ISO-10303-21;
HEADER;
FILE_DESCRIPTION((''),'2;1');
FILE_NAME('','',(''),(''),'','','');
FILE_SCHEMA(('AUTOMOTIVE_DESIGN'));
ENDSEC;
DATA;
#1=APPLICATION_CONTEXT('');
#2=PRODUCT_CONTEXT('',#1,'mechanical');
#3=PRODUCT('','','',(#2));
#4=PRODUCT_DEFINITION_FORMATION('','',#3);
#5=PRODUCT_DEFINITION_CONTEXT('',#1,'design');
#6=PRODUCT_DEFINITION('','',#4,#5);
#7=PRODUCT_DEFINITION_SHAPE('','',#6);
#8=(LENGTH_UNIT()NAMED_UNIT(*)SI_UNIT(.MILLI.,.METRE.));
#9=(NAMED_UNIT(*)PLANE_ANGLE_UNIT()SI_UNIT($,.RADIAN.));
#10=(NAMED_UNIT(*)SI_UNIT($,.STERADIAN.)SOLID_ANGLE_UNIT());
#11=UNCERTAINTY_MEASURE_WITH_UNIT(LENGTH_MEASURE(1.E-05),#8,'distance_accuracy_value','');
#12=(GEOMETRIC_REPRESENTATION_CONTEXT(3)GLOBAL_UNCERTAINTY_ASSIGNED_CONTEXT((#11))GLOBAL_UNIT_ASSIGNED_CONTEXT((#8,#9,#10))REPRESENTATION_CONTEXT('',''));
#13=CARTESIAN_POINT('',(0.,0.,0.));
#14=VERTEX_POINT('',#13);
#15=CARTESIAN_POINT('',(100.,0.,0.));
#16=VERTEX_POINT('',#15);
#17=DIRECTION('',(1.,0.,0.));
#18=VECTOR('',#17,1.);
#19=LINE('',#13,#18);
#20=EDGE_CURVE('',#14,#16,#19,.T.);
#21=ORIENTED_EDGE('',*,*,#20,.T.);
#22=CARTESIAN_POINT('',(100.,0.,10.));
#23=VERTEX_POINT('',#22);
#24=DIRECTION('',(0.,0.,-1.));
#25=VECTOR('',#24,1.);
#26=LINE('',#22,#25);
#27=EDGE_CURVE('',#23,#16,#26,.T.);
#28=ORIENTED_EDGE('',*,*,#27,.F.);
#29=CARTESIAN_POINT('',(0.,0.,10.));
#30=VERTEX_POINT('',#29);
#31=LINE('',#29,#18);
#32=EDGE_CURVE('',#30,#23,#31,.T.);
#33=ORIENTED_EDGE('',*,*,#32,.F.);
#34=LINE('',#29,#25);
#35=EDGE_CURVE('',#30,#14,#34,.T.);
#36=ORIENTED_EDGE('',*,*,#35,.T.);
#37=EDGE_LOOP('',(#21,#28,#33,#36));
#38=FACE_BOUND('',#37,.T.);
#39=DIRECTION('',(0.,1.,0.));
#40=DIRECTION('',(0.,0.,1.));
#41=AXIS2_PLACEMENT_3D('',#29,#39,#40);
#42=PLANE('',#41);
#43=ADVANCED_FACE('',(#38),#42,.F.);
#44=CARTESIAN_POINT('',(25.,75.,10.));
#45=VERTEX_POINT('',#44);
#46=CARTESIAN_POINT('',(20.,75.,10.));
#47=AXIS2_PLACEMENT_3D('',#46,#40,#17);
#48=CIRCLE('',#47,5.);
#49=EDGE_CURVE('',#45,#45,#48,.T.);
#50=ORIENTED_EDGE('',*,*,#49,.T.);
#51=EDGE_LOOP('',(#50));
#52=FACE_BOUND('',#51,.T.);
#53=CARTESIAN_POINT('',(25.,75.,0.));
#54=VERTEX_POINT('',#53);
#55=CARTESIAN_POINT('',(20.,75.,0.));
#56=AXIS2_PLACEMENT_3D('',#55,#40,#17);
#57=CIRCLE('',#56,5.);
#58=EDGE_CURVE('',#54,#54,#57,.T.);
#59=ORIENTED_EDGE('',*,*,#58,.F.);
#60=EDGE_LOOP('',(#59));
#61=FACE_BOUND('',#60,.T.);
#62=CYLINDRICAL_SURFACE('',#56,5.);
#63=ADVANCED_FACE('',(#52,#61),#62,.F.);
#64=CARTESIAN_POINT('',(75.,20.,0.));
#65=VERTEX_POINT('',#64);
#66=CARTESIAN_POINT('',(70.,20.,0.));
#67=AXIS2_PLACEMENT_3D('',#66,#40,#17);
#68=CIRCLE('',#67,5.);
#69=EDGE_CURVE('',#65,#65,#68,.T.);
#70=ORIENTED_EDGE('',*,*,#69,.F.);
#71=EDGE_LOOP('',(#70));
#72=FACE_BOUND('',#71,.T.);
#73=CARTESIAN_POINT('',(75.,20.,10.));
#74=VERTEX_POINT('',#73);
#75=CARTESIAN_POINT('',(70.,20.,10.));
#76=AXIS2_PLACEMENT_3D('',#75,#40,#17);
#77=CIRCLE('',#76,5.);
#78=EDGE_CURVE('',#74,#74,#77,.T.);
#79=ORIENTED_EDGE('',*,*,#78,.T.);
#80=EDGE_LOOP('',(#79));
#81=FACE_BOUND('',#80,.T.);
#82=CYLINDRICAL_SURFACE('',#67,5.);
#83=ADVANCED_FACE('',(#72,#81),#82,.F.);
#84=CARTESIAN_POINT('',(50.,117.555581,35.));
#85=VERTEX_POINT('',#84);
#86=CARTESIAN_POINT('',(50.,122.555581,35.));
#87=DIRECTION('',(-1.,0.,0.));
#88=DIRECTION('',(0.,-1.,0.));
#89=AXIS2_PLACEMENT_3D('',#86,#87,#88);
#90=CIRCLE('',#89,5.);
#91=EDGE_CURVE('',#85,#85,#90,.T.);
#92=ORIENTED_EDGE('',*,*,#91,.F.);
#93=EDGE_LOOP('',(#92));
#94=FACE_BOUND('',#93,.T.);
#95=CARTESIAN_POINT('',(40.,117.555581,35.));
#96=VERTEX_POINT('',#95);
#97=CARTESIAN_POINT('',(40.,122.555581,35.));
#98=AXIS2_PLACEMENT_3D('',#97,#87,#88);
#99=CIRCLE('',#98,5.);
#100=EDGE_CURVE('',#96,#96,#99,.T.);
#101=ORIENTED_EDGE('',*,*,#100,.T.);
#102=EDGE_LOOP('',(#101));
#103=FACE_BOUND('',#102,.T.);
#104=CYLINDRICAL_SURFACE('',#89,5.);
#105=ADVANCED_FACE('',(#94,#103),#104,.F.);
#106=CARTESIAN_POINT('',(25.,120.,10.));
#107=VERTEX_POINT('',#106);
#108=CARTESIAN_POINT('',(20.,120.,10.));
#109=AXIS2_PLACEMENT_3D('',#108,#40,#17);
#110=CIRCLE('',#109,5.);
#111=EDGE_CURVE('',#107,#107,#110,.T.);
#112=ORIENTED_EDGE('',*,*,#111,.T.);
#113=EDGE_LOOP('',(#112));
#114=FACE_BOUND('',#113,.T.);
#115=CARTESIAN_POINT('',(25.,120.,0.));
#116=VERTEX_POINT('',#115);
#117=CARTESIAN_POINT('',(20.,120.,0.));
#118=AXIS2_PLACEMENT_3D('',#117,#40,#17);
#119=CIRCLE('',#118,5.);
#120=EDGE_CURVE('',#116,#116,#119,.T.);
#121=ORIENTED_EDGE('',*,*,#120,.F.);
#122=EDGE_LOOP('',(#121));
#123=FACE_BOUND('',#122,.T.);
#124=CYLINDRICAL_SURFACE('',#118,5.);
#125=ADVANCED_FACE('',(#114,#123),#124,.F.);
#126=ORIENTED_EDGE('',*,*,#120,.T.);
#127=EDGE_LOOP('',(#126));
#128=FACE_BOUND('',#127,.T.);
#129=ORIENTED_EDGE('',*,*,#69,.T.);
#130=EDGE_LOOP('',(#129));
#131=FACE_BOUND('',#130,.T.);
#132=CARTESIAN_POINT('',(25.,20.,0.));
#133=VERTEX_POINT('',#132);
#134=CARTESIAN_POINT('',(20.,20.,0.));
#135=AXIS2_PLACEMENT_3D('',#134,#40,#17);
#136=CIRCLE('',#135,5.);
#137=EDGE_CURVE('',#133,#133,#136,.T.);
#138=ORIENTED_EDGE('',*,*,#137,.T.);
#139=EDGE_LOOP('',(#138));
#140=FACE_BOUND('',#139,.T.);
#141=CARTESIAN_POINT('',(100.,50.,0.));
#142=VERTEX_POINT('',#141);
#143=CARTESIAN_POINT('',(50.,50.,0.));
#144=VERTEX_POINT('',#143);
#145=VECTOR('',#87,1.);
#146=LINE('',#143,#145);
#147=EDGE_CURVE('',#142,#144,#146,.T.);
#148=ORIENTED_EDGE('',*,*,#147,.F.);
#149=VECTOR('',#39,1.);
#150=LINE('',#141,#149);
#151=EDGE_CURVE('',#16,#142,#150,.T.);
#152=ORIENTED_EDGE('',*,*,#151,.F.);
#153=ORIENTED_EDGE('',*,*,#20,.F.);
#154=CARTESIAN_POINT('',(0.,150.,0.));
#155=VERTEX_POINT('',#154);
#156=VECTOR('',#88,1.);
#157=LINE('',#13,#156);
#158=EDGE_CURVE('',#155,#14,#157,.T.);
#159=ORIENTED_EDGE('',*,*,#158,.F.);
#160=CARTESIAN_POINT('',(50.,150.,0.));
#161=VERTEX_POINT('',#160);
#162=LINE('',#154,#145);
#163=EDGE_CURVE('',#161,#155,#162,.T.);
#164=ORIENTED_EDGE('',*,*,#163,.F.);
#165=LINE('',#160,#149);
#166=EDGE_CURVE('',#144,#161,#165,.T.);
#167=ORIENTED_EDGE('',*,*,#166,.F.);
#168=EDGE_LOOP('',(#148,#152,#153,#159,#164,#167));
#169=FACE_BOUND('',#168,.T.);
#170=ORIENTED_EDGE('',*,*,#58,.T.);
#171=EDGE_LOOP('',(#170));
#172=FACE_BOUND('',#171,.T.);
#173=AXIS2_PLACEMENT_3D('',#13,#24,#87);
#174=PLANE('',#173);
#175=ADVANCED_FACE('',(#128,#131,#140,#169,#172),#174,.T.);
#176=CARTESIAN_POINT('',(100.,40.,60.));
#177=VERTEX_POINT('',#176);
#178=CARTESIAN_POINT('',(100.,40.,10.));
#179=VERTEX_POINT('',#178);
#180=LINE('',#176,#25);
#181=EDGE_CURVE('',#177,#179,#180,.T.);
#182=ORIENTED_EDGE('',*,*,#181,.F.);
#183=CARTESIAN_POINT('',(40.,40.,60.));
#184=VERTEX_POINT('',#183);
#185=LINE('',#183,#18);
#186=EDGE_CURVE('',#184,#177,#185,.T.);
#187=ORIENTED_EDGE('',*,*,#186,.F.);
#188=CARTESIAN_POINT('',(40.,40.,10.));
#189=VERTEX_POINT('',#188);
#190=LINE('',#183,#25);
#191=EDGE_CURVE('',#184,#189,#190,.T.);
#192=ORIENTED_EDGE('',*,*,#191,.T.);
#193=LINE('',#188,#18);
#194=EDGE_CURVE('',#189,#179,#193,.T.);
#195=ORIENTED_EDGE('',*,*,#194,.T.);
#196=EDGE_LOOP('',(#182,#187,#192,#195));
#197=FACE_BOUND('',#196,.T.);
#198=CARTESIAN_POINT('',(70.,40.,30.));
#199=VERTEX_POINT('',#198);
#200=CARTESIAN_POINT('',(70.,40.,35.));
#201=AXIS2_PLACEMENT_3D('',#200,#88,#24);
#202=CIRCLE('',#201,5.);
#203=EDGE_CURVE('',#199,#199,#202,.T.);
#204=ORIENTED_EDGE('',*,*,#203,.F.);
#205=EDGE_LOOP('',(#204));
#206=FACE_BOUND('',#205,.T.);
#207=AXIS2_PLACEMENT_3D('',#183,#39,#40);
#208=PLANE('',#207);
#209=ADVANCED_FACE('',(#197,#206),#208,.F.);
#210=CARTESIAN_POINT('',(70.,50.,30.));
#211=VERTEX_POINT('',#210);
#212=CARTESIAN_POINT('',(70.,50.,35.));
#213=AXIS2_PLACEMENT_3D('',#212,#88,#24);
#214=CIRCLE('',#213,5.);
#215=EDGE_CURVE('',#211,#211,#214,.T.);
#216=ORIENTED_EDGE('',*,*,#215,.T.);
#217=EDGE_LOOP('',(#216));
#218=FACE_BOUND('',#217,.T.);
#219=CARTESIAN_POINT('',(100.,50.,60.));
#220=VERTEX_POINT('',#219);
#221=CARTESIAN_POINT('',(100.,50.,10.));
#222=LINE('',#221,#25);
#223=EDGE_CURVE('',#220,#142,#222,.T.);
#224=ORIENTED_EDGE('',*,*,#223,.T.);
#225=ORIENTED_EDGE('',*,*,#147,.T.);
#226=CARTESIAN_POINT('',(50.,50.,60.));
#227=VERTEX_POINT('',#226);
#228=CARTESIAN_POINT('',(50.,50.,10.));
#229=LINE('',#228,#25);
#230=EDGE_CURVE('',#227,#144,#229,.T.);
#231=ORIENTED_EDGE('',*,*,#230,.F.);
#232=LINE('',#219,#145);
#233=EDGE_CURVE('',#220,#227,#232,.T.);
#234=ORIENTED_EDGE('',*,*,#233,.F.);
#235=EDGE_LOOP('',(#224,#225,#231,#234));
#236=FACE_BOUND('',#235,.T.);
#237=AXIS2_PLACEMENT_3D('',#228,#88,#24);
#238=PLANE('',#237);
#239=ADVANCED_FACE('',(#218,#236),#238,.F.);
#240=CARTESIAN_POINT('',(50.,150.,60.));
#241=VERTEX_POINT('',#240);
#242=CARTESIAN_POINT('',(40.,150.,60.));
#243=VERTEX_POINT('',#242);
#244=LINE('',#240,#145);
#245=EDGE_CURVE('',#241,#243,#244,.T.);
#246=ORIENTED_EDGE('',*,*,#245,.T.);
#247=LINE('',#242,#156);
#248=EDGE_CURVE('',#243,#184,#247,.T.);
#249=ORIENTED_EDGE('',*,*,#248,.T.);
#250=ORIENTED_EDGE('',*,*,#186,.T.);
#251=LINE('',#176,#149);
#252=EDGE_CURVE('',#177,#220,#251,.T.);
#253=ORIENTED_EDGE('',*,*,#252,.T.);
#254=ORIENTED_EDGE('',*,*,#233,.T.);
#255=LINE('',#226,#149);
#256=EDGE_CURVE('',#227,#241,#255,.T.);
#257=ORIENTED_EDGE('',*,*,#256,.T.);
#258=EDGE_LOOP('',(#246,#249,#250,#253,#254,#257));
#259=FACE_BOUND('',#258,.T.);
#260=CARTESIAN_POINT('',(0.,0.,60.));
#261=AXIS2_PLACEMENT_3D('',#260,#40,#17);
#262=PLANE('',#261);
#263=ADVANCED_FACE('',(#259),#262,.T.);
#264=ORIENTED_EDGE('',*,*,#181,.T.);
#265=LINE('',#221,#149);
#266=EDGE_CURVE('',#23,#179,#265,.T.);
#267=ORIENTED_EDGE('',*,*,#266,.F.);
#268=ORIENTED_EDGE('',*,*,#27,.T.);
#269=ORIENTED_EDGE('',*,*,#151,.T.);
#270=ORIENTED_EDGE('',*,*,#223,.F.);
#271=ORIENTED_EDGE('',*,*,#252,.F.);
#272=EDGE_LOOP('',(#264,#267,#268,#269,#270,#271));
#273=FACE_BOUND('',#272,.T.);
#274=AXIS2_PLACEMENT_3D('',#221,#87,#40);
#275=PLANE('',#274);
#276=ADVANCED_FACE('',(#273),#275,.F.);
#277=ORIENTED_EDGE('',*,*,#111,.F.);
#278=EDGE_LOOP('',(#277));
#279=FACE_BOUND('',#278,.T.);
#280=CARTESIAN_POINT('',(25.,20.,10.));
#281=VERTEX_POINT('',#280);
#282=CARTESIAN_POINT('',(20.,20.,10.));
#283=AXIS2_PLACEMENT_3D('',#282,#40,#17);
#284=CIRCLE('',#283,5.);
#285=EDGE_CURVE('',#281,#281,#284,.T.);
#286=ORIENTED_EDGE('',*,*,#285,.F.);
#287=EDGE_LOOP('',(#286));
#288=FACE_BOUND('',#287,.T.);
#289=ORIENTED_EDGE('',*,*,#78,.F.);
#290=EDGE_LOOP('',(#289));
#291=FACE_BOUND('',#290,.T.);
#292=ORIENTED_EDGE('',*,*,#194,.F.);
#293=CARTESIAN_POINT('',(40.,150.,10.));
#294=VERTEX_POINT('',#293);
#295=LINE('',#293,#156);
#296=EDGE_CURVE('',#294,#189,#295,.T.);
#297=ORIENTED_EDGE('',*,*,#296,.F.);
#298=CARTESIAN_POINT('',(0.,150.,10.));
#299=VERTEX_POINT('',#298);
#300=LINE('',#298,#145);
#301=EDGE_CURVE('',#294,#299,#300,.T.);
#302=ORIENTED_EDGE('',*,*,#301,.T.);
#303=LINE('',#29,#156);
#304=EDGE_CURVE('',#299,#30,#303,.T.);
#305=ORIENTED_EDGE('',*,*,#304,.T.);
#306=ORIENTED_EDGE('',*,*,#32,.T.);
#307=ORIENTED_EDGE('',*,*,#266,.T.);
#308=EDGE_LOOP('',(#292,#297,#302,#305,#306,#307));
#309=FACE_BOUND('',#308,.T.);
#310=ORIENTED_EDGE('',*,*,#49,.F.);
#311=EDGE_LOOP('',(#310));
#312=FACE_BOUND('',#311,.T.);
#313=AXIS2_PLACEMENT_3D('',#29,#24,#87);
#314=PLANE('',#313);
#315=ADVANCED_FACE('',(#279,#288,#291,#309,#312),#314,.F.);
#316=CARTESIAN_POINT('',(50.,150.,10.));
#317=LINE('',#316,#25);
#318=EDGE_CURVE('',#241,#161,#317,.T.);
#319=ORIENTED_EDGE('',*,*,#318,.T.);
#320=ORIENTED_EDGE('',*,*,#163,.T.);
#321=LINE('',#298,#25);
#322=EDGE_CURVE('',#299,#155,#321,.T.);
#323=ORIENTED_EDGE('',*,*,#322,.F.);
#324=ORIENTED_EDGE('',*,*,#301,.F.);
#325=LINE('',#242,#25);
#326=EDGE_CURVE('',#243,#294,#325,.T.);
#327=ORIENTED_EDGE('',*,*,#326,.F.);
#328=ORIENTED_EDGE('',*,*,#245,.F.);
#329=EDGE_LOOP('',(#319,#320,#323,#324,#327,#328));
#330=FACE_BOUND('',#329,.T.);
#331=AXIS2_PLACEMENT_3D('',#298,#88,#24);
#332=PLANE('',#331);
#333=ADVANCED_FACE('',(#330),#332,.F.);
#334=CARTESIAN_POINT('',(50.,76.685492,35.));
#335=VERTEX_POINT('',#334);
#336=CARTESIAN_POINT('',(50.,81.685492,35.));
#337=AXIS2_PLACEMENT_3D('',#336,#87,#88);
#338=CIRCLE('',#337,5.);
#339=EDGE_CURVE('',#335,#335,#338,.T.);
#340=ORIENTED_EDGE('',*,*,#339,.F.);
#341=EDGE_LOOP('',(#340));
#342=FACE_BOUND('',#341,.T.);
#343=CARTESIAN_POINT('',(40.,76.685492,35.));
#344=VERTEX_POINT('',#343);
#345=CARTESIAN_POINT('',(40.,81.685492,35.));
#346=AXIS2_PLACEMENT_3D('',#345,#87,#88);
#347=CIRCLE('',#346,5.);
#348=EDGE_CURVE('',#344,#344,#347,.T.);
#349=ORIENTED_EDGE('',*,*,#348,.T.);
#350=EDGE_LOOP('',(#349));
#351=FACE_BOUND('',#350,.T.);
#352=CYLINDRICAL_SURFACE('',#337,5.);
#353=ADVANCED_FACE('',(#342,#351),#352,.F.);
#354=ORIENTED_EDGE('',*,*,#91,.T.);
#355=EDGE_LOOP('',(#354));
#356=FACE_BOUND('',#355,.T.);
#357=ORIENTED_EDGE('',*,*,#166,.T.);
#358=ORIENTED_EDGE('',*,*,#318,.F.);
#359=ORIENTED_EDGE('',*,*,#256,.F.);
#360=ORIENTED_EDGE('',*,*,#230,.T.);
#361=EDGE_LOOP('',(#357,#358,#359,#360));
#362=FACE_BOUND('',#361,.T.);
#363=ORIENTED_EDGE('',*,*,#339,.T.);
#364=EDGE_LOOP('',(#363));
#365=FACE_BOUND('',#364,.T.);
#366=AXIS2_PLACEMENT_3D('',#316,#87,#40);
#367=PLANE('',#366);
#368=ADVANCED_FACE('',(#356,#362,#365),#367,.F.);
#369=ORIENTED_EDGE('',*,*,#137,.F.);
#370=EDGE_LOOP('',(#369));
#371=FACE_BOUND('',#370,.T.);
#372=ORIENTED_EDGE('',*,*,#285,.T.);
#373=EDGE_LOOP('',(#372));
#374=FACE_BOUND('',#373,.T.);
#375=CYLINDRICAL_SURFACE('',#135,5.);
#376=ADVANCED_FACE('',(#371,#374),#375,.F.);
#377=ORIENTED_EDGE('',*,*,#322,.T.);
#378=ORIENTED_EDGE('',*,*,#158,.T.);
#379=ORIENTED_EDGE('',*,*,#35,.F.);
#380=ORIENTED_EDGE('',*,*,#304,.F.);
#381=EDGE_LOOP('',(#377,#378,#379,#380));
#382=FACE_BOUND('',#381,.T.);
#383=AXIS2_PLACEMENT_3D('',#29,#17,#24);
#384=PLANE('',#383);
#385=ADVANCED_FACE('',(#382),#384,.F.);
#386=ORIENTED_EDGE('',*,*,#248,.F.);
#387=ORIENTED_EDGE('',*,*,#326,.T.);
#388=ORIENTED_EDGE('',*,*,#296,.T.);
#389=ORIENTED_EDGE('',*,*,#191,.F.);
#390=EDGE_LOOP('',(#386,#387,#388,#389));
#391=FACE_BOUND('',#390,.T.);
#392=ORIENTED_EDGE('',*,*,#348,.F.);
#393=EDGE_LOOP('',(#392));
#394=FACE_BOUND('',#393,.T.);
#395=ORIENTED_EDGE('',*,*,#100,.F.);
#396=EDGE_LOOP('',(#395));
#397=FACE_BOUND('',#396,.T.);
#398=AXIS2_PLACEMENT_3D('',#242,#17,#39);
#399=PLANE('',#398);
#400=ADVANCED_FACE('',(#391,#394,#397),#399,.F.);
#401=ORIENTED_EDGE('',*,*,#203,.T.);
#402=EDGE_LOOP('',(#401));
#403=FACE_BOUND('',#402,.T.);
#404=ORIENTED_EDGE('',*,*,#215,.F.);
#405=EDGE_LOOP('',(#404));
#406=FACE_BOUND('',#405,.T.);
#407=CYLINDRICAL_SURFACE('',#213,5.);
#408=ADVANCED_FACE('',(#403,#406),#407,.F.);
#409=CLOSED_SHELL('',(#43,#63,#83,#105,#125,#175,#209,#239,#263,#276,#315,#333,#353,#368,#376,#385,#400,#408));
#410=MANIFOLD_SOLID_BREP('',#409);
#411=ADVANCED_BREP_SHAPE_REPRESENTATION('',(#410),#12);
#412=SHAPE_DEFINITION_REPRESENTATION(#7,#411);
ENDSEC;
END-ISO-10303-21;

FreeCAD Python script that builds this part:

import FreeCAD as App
import Part
import Sketcher

V = App.Vector

doc = App.newDocument("Part")
body = doc.addObject("PartDesign::Body", "Body")

# Sketch on XY plane
sketch1 = body.newObject("Sketcher::SketchObject", "Sketch")
sketch1.AttachmentSupport = (doc.getObject("XY_Plane"), [""])
sketch1.MapMode = "FlatFace"
sketch1.addGeometry([
    Part.LineSegment(V(50, 150, 0), V(0, 150, 0)),  # 0
    Part.LineSegment(V(0, 150, 0), V(0, 0, 0)),  # 1
    Part.LineSegment(V(0, 0, 0), V(100, 0, 0)),  # 2
    Part.LineSegment(V(100, 0, 0), V(100, 50, 0)),  # 3
    Part.LineSegment(V(100, 50, 0), V(50, 50, 0)),  # 4
    Part.LineSegment(V(50, 50, 0), V(50, 150, 0)),  # 5
], False)
sketch1.addConstraint([
    Sketcher.Constraint("Coincident", 0, 2, 1, 1),
    Sketcher.Constraint("Coincident", 1, 2, 2, 1),
    Sketcher.Constraint("Coincident", 2, 2, 3, 1),
    Sketcher.Constraint("Coincident", 3, 2, 4, 1),
    Sketcher.Constraint("Coincident", 4, 2, 5, 1),
    Sketcher.Constraint("Coincident", 5, 2, 0, 1),
    Sketcher.Constraint("Horizontal", 0),
    Sketcher.Constraint("Vertical", 1),
    Sketcher.Constraint("Horizontal", 2),
    Sketcher.Constraint("Vertical", 3),
    Sketcher.Constraint("Horizontal", 4),
    Sketcher.Constraint("Vertical", 5),
    Sketcher.Constraint("Coincident", 1, 2, -1, 1),
    Sketcher.Constraint("Equal", 0, 4),
    Sketcher.Constraint("Equal", 4, 3),
    Sketcher.Constraint("Equal", 2, 5),
    Sketcher.Constraint("DistanceX", 0, 2, 0, 1, 50.0),
])
pad1 = body.newObject("PartDesign::Pad", "Pad")
pad1.Profile = sketch1
pad1.Length = 10

# Sketch on XY plane
sketch2 = body.newObject("Sketcher::SketchObject", "Sketch001")
sketch2.AttachmentSupport = (doc.getObject("XY_Plane"), [""])
sketch2.MapMode = "FlatFace"
sketch2.AttachmentOffset = App.Placement(V(0, 0, 10), App.Rotation())
sketch2.addGeometry([
    Part.LineSegment(V(40, 150, 0), V(40, 40, 0)),  # 0
    Part.LineSegment(V(40, 40, 0), V(100, 40, 0)),  # 1
    Part.LineSegment(V(100, 40, 0), V(100, 50, 0)),  # 2
    Part.LineSegment(V(100, 50, 0), V(50, 50, 0)),  # 3
    Part.LineSegment(V(50, 50, 0), V(50, 150, 0)),  # 4
    Part.LineSegment(V(50, 150, 0), V(40, 150, 0)),  # 5
], False)
sketch2.addConstraint([
    Sketcher.Constraint("Coincident", 0, 2, 1, 1),
    Sketcher.Constraint("Coincident", 1, 2, 2, 1),
    Sketcher.Constraint("Coincident", 2, 2, 3, 1),
    Sketcher.Constraint("Coincident", 3, 2, 4, 1),
    Sketcher.Constraint("Coincident", 4, 2, 5, 1),
    Sketcher.Constraint("Coincident", 5, 2, 0, 1),
    Sketcher.Constraint("Vertical", 0),
    Sketcher.Constraint("Horizontal", 1),
    Sketcher.Constraint("Vertical", 2),
    Sketcher.Constraint("Horizontal", 3),
    Sketcher.Constraint("Vertical", 4),
    Sketcher.Constraint("Horizontal", 5),
    Sketcher.Constraint("Equal", 5, 2),
    Sketcher.Constraint("DistanceX", 1, 1, 1, 2, 60.0),
    Sketcher.Constraint("DistanceX", 3, 2, 3, 1, 50.0),
    Sketcher.Constraint("DistanceY", 0, 2, 0, 1, 110.0),
    Sketcher.Constraint("DistanceX", -1, 1, 0, 2, 40.0),
    Sketcher.Constraint("DistanceY", -1, 1, 0, 2, 40.0),
])
pad2 = body.newObject("PartDesign::Pad", "Pad001")
pad2.Profile = sketch2
pad2.Length = 50

# Sketch on XY plane
sketch3 = body.newObject("Sketcher::SketchObject", "Sketch002")
sketch3.AttachmentSupport = (doc.getObject("XY_Plane"), [""])
sketch3.MapMode = "FlatFace"
sketch3.AttachmentOffset = App.Placement(V(0, 0, 10), App.Rotation())
sketch3.addGeometry([
    Part.Circle(V(20, 20, 0), V(0, 0, 1), 5),
    Part.Circle(V(20, 120, 0), V(0, 0, 1), 5),
    Part.Circle(V(20, 75, 0), V(0, 0, 1), 5),
    Part.Circle(V(70, 20, 0), V(0, 0, 1), 5),
], False)
sketch3.addConstraint([
    Sketcher.Constraint("Equal", 0, 1),
    Sketcher.Constraint("Equal", 1, 2),
    Sketcher.Constraint("Equal", 2, 3),
    Sketcher.Constraint("Horizontal", 0, 3, 3, 3),
    Sketcher.Constraint("Vertical", 0, 3, 1, 3),
    Sketcher.Constraint("Vertical", 1, 3, 2, 3),
    Sketcher.Constraint("Diameter", 0, 10.0),
    Sketcher.Constraint("DistanceX", -1, 1, 0, 3, 20.0),
    Sketcher.Constraint("DistanceY", -1, 1, 0, 3, 20.0),
    Sketcher.Constraint("DistanceY", -1, 1, 1, 3, 120.0),
    Sketcher.Constraint("DistanceY", -1, 1, 2, 3, 75.0),
    Sketcher.Constraint("DistanceX", -1, 1, 3, 3, 70.0),
])
pocket1 = body.newObject("PartDesign::Pocket", "Pocket")
pocket1.Profile = sketch3
pocket1.Type = "ThroughAll"

# Sketch on YZ plane
sketch4 = body.newObject("Sketcher::SketchObject", "Sketch003")
sketch4.AttachmentSupport = (doc.getObject("YZ_Plane"), [""])
sketch4.MapMode = "FlatFace"
sketch4.AttachmentOffset = App.Placement(V(0, 0, 40), App.Rotation())
sketch4.addGeometry([
    Part.Circle(V(123, 35, 0), V(0, 0, 1), 5),
    Part.Circle(V(82, 35, 0), V(0, 0, 1), 5),
], False)
sketch4.addConstraint([
    Sketcher.Constraint("Equal", 0, 1),
    Sketcher.Constraint("Horizontal", 0, 3, 1, 3),
    Sketcher.Constraint("Diameter", 0, 10.0),
    Sketcher.Constraint("DistanceY", -1, 1, 0, 3, 35.0),
    Sketcher.Constraint("DistanceX", -1, 1, 0, 3, 122.555581),
    Sketcher.Constraint("DistanceX", -1, 1, 1, 3, 81.685492),
])
pocket2 = body.newObject("PartDesign::Pocket", "Pocket001")
pocket2.Profile = sketch4
pocket2.Length = 10
pocket2.Reversed = True

# Sketch on XZ plane
sketch5 = body.newObject("Sketcher::SketchObject", "Sketch004")
sketch5.AttachmentSupport = (doc.getObject("XZ_Plane"), [""])
sketch5.MapMode = "FlatFace"
sketch5.AttachmentOffset = App.Placement(V(0, 0, -40), App.Rotation())
sketch5.addGeometry(Part.Circle(V(70, 35, 0), V(0, 0, 1), 5), False)
sketch5.addConstraint([
    Sketcher.Constraint("Diameter", 0, 10.0),
    Sketcher.Constraint("DistanceX", -1, 1, 0, 3, 70.0),
    Sketcher.Constraint("DistanceY", -1, 1, 0, 3, 35.0),
])
pocket3 = body.newObject("PartDesign::Pocket", "Pocket002")
pocket3.Profile = sketch5
pocket3.Length = 10

doc.recompute()
